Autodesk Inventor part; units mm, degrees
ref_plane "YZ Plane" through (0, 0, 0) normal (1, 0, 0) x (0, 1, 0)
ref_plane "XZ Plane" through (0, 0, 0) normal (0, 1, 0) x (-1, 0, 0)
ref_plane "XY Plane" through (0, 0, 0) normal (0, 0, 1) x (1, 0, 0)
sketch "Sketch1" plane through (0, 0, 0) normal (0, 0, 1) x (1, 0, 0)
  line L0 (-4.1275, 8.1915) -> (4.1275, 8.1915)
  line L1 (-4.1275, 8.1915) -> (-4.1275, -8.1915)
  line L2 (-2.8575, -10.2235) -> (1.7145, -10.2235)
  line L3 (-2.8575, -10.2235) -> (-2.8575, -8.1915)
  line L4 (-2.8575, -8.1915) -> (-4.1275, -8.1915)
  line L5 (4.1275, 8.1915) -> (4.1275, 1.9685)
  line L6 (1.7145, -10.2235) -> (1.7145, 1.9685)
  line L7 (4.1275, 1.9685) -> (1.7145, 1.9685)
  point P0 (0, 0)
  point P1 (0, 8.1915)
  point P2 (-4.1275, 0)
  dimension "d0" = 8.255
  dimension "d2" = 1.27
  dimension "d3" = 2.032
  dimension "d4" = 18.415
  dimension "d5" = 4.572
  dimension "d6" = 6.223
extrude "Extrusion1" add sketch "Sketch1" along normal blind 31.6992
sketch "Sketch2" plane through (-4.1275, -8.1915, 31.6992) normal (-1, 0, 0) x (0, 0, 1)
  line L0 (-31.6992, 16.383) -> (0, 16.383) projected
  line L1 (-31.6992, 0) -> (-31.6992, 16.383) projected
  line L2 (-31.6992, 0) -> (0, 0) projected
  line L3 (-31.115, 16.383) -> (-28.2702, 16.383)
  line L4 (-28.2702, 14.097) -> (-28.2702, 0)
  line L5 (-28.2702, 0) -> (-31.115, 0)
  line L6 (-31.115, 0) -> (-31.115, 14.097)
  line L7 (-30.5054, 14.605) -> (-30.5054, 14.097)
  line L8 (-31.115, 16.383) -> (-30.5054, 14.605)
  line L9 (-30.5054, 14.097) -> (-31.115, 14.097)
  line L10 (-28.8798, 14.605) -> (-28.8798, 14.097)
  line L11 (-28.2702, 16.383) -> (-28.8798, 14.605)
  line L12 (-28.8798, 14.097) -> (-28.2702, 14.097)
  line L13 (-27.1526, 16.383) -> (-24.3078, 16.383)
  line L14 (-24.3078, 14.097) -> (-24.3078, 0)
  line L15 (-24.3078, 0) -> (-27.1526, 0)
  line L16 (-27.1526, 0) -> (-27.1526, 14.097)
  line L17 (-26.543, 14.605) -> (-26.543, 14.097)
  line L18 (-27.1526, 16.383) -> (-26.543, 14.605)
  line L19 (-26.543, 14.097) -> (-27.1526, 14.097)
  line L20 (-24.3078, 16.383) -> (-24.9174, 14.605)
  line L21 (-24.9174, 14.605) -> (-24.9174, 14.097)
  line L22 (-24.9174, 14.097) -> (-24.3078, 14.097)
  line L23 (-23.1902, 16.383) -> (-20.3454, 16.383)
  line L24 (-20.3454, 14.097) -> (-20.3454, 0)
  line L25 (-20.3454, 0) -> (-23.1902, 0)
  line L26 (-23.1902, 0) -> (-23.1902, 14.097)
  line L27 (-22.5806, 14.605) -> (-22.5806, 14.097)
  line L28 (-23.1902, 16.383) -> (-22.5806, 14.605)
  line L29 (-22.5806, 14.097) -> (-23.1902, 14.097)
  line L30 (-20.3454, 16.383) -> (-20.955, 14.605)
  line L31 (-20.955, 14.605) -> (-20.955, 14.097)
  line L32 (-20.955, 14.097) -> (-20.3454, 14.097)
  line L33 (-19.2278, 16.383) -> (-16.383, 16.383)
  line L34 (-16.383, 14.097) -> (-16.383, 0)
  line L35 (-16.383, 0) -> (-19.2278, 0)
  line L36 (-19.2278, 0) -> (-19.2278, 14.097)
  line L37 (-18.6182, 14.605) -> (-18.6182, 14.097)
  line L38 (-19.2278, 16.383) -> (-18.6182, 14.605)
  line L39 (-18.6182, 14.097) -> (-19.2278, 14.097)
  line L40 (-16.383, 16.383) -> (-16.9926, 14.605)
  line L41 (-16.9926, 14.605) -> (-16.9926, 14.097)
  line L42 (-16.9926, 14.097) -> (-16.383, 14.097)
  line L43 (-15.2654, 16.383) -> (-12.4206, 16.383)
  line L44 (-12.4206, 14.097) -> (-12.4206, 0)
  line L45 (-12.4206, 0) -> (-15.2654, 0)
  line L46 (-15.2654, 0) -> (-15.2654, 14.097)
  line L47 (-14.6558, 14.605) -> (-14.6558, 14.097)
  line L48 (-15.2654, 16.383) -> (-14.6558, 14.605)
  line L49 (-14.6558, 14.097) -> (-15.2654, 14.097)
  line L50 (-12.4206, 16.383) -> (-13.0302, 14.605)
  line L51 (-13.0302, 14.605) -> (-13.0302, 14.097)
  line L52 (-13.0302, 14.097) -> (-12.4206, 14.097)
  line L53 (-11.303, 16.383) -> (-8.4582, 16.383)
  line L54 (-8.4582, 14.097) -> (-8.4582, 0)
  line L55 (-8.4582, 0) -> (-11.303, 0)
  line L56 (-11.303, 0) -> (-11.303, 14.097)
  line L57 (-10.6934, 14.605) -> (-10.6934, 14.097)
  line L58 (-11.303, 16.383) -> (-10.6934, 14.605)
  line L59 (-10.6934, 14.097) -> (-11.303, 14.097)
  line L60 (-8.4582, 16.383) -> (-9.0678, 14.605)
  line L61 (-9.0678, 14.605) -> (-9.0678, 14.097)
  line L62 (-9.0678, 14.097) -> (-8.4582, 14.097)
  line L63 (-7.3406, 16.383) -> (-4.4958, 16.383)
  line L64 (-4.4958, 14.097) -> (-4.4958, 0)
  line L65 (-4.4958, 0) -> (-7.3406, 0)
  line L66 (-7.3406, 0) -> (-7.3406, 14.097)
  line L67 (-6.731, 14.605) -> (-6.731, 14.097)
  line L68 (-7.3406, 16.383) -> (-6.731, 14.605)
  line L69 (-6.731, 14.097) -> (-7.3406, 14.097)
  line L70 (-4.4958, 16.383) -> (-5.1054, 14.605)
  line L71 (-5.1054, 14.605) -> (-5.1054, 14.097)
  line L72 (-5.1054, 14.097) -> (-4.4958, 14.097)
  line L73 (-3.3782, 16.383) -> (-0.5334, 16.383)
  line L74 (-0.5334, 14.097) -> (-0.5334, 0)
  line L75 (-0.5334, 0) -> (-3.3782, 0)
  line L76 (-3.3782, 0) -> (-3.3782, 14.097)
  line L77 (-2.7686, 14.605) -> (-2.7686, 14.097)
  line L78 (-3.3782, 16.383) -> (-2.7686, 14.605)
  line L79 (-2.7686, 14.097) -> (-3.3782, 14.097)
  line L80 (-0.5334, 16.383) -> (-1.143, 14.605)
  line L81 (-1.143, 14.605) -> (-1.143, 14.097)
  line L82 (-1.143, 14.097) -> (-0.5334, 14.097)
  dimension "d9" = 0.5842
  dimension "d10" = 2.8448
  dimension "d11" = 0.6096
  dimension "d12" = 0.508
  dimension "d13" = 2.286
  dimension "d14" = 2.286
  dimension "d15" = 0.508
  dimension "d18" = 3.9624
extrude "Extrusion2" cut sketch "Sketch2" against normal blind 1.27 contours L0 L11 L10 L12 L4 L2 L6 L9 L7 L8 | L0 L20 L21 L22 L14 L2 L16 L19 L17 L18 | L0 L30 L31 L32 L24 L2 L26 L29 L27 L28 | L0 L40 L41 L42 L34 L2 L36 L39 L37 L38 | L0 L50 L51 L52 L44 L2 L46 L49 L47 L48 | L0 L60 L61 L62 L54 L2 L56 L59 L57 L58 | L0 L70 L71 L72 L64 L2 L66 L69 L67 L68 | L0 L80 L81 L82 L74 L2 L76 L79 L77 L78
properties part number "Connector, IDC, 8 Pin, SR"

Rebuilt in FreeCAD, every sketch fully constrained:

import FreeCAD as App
import Part
import Sketcher
from FreeCAD import Vector
Q = App.Units.Quantity


def add_polygon(sketch, points):
    """Adds a closed chain of lines whose ends are joined by coincident constraints."""
    first, n = sketch.GeometryCount, len(points)
    for a, b in zip(points, points[1:] + points[:1]):
        sketch.addGeometry(Part.LineSegment(App.Vector(*a, 0), App.Vector(*b, 0)), False)
    for i in range(n):
        sketch.addConstraint(Sketcher.Constraint("Coincident", first + i, 2, first + (i + 1) % n, 1))

doc = App.newDocument("Part")
body = doc.addObject("PartDesign::Body", "Body")

# Sketch on XY plane
sketch1 = body.newObject("Sketcher::SketchObject", "Sketch")
sketch1.AttachmentSupport = (doc.getObject("XY_Plane"), [""])
sketch1.MapMode = "FlatFace"
add_polygon(sketch1, [(4.1, 8.2), (-4.1, 8.2), (-4.1, -8.2), (-2.9, -8.2), (-2.9, -10.2), (1.7, -10.2), (1.7, 2), (4.1, 2)])  # lines 0-7
sketch1.addConstraint([
    Sketcher.Constraint("Horizontal", 0),
    Sketcher.Constraint("Vertical", 1),
    Sketcher.Constraint("Horizontal", 2),
    Sketcher.Constraint("Vertical", 3),
    Sketcher.Constraint("Horizontal", 4),
    Sketcher.Constraint("Vertical", 5),
    Sketcher.Constraint("Horizontal", 6),
    Sketcher.Constraint("Vertical", 7),
    Sketcher.Constraint("Symmetric", 1, 2, 7, 2, -1, 1),
    Sketcher.Constraint("DistanceX", 2, 1, 2, 2, Q("0.05 in")),
    Sketcher.Constraint("DistanceX", 4, 1, 4, 2, Q("0.18 in")),
    Sketcher.Constraint("DistanceY", 3, 2, 3, 1, Q("0.08 in")),
    Sketcher.Constraint("DistanceX", 0, 2, 0, 1, Q("0.325 in")),
    Sketcher.Constraint("DistanceY", 7, 1, 7, 2, Q("0.245 in")),
    Sketcher.Constraint("DistanceY", 3, 2, 0, 2, Q("0.725 in")),
])
pad1 = body.newObject("PartDesign::Pad", "Pad")
pad1.Profile = sketch1
pad1.Length = Q("1.248 in")

# Sketch on YZ plane
sketch2 = body.newObject("Sketcher::SketchObject", "Sketch001")
sketch2.AttachmentSupport = (doc.getObject("YZ_Plane"), [""])
sketch2.MapMode = "FlatFace"
sketch2.AttachmentOffset = App.Placement(Vector(0, 0, -0.1625 * 25.4), App.Rotation())
add_polygon(sketch2, [(8.2, 3.4), (8.2, 0.6), (6.4, 1.2), (5.9, 1.2), (5.9, 0.6), (-8.2, 0.6), (-8.2, 3.4), (5.9, 3.4), (5.9, 2.8), (6.4, 2.8)])  # lines 0-9
add_polygon(sketch2, [(8.2, 7.4), (8.2, 4.5), (6.4, 5.2), (5.9, 5.2), (5.9, 4.5), (-8.2, 4.5), (-8.2, 7.4), (5.9, 7.4), (5.9, 6.8), (6.4, 6.8)])  # lines 10-19
add_polygon(sketch2, [(8.2, 11.4), (8.2, 8.5), (6.4, 9.1), (5.9, 9.1), (5.9, 8.5), (-8.2, 8.5), (-8.2, 11.4), (5.9, 11.4), (5.9, 10.7), (6.4, 10.7)])  # lines 20-29
add_polygon(sketch2, [(8.2, 15.3), (8.2, 12.5), (6.4, 13.1), (5.9, 13.1), (5.9, 12.5), (-8.2, 12.5), (-8.2, 15.3), (5.9, 15.3), (5.9, 14.7), (6.4, 14.7)])  # lines 30-39
add_polygon(sketch2, [(8.2, 19.3), (8.2, 16.4), (6.4, 17), (5.9, 17), (5.9, 16.4), (-8.2, 16.4), (-8.2, 19.3), (5.9, 19.3), (5.9, 18.7), (6.4, 18.7)])  # lines 40-49
add_polygon(sketch2, [(8.2, 23.2), (8.2, 20.4), (6.4, 21), (5.9, 21), (5.9, 20.4), (-8.2, 20.4), (-8.2, 23.2), (5.9, 23.2), (5.9, 22.6), (6.4, 22.6)])  # lines 50-59
add_polygon(sketch2, [(8.2, 27.2), (8.2, 24.4), (6.4, 25), (5.9, 25), (5.9, 24.4), (-8.2, 24.4), (-8.2, 27.2), (5.9, 27.2), (5.9, 26.6), (6.4, 26.6)])  # lines 60-69
add_polygon(sketch2, [(8.2, 31.2), (8.2, 28.3), (6.4, 28.9), (5.9, 28.9), (5.9, 28.3), (-8.2, 28.3), (-8.2, 31.2), (5.9, 31.2), (5.9, 30.6), (6.4, 30.6)])  # lines 70-79
sketch2.addConstraint([
    Sketcher.Constraint("Vertical", 0),
    Sketcher.Constraint("Horizontal", 2),
    Sketcher.Constraint("Vertical", 3),
    Sketcher.Constraint("Horizontal", 4),
    Sketcher.Constraint("Vertical", 5),
    Sketcher.Constraint("Horizontal", 6),
    Sketcher.Constraint("Vertical", 7),
    Sketcher.Constraint("Horizontal", 8),
    Sketcher.Constraint("Vertical", 10),
    Sketcher.Constraint("Horizontal", 12),
    Sketcher.Constraint("Vertical", 13),
    Sketcher.Constraint("Horizontal", 14),
    Sketcher.Constraint("Vertical", 15),
    Sketcher.Constraint("Horizontal", 16),
    Sketcher.Constraint("Vertical", 17),
    Sketcher.Constraint("Horizontal", 18),
    Sketcher.Constraint("Vertical", 20),
    Sketcher.Constraint("Horizontal", 22),
    Sketcher.Constraint("Vertical", 23),
    Sketcher.Constraint("Horizontal", 24),
    Sketcher.Constraint("Vertical", 25),
    Sketcher.Constraint("Horizontal", 26),
    Sketcher.Constraint("Vertical", 27),
    Sketcher.Constraint("Horizontal", 28),
    Sketcher.Constraint("Vertical", 30),
    Sketcher.Constraint("Horizontal", 32),
    Sketcher.Constraint("Vertical", 33),
    Sketcher.Constraint("Horizontal", 34),
    Sketcher.Constraint("Vertical", 35),
    Sketcher.Constraint("Horizontal", 36),
    Sketcher.Constraint("Vertical", 37),
    Sketcher.Constraint("Horizontal", 38),
    Sketcher.Constraint("Vertical", 40),
    Sketcher.Constraint("Horizontal", 42),
    Sketcher.Constraint("Vertical", 43),
    Sketcher.Constraint("Horizontal", 44),
    Sketcher.Constraint("Vertical", 45),
    Sketcher.Constraint("Horizontal", 46),
    Sketcher.Constraint("Vertical", 47),
    Sketcher.Constraint("Horizontal", 48),
    Sketcher.Constraint("Vertical", 50),
    Sketcher.Constraint("Horizontal", 52),
    Sketcher.Constraint("Vertical", 53),
    Sketcher.Constraint("Horizontal", 54),
    Sketcher.Constraint("Vertical", 55),
    Sketcher.Constraint("Horizontal", 56),
    Sketcher.Constraint("Vertical", 57),
    Sketcher.Constraint("Horizontal", 58),
    Sketcher.Constraint("Vertical", 60),
    Sketcher.Constraint("Horizontal", 62),
    Sketcher.Constraint("Vertical", 63),
    Sketcher.Constraint("Horizontal", 64),
    Sketcher.Constraint("Vertical", 65),
    Sketcher.Constraint("Horizontal", 66),
    Sketcher.Constraint("Vertical", 67),
    Sketcher.Constraint("Horizontal", 68),
    Sketcher.Constraint("Vertical", 70),
    Sketcher.Constraint("Horizontal", 72),
    Sketcher.Constraint("Vertical", 73),
    Sketcher.Constraint("Horizontal", 74),
    Sketcher.Constraint("Vertical", 75),
    Sketcher.Constraint("Horizontal", 76),
    Sketcher.Constraint("Vertical", 77),
    Sketcher.Constraint("Horizontal", 78),
    Sketcher.Constraint("Symmetric", 0, 2, 4, 2, -2),
    Sketcher.Constraint("Symmetric", 10, 2, 14, 2, -2),
    Sketcher.Constraint("Symmetric", 20, 2, 24, 2, -2),
    Sketcher.Constraint("Symmetric", 30, 2, 34, 2, -2),
    Sketcher.Constraint("Symmetric", 40, 2, 44, 2, -2),
    Sketcher.Constraint("Symmetric", 50, 2, 54, 2, -2),
    Sketcher.Constraint("Symmetric", 60, 2, 64, 2, -2),
    Sketcher.Constraint("Symmetric", 70, 2, 74, 2, -2),
    Sketcher.Constraint("Parallel", 1, 11),
    Sketcher.Constraint("Parallel", 9, 19),
    Sketcher.Constraint("Parallel", 11, 21),
    Sketcher.Constraint("Parallel", 19, 29),
    Sketcher.Constraint("Parallel", 21, 31),
    Sketcher.Constraint("Parallel", 29, 39),
    Sketcher.Constraint("Parallel", 31, 41),
    Sketcher.Constraint("Parallel", 39, 49),
    Sketcher.Constraint("Parallel", 41, 51),
    Sketcher.Constraint("Parallel", 49, 59),
    Sketcher.Constraint("Parallel", 51, 61),
    Sketcher.Constraint("Parallel", 59, 69),
    Sketcher.Constraint("Parallel", 61, 71),
    Sketcher.Constraint("Parallel", 69, 79),
    Sketcher.Constraint("Horizontal", 6, 2, 9, 2),
    Sketcher.Constraint("Horizontal", 16, 2, 19, 2),
    Sketcher.Constraint("Horizontal", 26, 2, 29, 2),
    Sketcher.Constraint("Horizontal", 36, 2, 39, 2),
    Sketcher.Constraint("Horizontal", 46, 2, 49, 2),
    Sketcher.Constraint("Horizontal", 56, 2, 59, 2),
    Sketcher.Constraint("Horizontal", 66, 2, 69, 2),
    Sketcher.Constraint("Horizontal", 76, 2, 79, 2),
    Sketcher.Constraint("Vertical", 3, 2, 6, 2),
    Sketcher.Constraint("Vertical", 1, 2, 8, 2),
    Sketcher.Constraint("Vertical", 9, 2, 10, 2),
    Sketcher.Constraint("Vertical", 8, 2, 11, 2),
    Sketcher.Constraint("Vertical", 7, 2, 12, 2),
    Sketcher.Constraint("Vertical", 13, 2, 16, 2),
    Sketcher.Constraint("Vertical", 11, 2, 18, 2),
    Sketcher.Constraint("Vertical", 19, 2, 20, 2),
    Sketcher.Constraint("Vertical", 18, 2, 21, 2),
    Sketcher.Constraint("Vertical", 17, 2, 22, 2),
    Sketcher.Constraint("Vertical", 23, 2, 26, 2),
    Sketcher.Constraint("Vertical", 21, 2, 28, 2),
    Sketcher.Constraint("Vertical", 29, 2, 30, 2),
    Sketcher.Constraint("Vertical", 28, 2, 31, 2),
    Sketcher.Constraint("Vertical", 27, 2, 32, 2),
    Sketcher.Constraint("Vertical", 33, 2, 36, 2),
    Sketcher.Constraint("Vertical", 31, 2, 38, 2),
    Sketcher.Constraint("Vertical", 39, 2, 40, 2),
    Sketcher.Constraint("Vertical", 38, 2, 41, 2),
    Sketcher.Constraint("Vertical", 37, 2, 42, 2),
    Sketcher.Constraint("Vertical", 43, 2, 46, 2),
    Sketcher.Constraint("Vertical", 41, 2, 48, 2),
    Sketcher.Constraint("Vertical", 49, 2, 50, 2),
    Sketcher.Constraint("Vertical", 48, 2, 51, 2),
    Sketcher.Constraint("Vertical", 47, 2, 52, 2),
    Sketcher.Constraint("Vertical", 53, 2, 56, 2),
    Sketcher.Constraint("Vertical", 51, 2, 58, 2),
    Sketcher.Constraint("Vertical", 59, 2, 60, 2),
    Sketcher.Constraint("Vertical", 58, 2, 61, 2),
    Sketcher.Constraint("Vertical", 57, 2, 62, 2),
    Sketcher.Constraint("Vertical", 63, 2, 66, 2),
    Sketcher.Constraint("Vertical", 61, 2, 68, 2),
    Sketcher.Constraint("Vertical", 69, 2, 70, 2),
    Sketcher.Constraint("Vertical", 68, 2, 71, 2),
    Sketcher.Constraint("Vertical", 67, 2, 72, 2),
    Sketcher.Constraint("Vertical", 73, 2, 76, 2),
    Sketcher.Constraint("Vertical", 71, 2, 78, 2),
    Sketcher.Constraint("Equal", 3, 7),
    Sketcher.Constraint("Equal", 5, 10),
    Sketcher.Constraint("Equal", 15, 20),
    Sketcher.Constraint("Equal", 25, 30),
    Sketcher.Constraint("Equal", 35, 40),
    Sketcher.Constraint("Equal", 45, 50),
    Sketcher.Constraint("Equal", 55, 60),
    Sketcher.Constraint("Equal", 65, 70),
    Sketcher.Constraint("DistanceX", 2, 2, 2, 1, Q("0.02 in")),
    Sketcher.Constraint("DistanceY", 0, 2, 0, 1, Q("0.112 in")),
    Sketcher.Constraint("DistanceY", 3, 2, 3, 1, Q("0.024 in")),
    Sketcher.Constraint("DistanceY", -1, 1, 0, 2, Q("0.023 in")),
    Sketcher.Constraint("DistanceX", 4, 2, 4, 1, Q("0.555 in")),
    Sketcher.Constraint("Distance", 1, Q("0.074 in")),
    Sketcher.Constraint("DistanceY", -1, 1, 10, 2, Q("0.179 in")),
    Sketcher.Constraint("DistanceY", -1, 1, 20, 2, Q("0.335 in")),
    Sketcher.Constraint("DistanceY", -1, 1, 30, 2, Q("0.491 in")),
    Sketcher.Constraint("DistanceY", -1, 1, 40, 2, Q("0.647 in")),
    Sketcher.Constraint("DistanceY", -1, 1, 50, 2, Q("0.803 in")),
    Sketcher.Constraint("DistanceY", -1, 1, 60, 2, Q("0.959 in")),
    Sketcher.Constraint("DistanceY", -1, 1, 70, 2, Q("1.115 in")),
])
pocket1 = body.newObject("PartDesign::Pocket", "Pocket")
pocket1.Profile = sketch2
pocket1.Length = Q("0.05 in")
pocket1.Reversed = True

doc.recompute()
